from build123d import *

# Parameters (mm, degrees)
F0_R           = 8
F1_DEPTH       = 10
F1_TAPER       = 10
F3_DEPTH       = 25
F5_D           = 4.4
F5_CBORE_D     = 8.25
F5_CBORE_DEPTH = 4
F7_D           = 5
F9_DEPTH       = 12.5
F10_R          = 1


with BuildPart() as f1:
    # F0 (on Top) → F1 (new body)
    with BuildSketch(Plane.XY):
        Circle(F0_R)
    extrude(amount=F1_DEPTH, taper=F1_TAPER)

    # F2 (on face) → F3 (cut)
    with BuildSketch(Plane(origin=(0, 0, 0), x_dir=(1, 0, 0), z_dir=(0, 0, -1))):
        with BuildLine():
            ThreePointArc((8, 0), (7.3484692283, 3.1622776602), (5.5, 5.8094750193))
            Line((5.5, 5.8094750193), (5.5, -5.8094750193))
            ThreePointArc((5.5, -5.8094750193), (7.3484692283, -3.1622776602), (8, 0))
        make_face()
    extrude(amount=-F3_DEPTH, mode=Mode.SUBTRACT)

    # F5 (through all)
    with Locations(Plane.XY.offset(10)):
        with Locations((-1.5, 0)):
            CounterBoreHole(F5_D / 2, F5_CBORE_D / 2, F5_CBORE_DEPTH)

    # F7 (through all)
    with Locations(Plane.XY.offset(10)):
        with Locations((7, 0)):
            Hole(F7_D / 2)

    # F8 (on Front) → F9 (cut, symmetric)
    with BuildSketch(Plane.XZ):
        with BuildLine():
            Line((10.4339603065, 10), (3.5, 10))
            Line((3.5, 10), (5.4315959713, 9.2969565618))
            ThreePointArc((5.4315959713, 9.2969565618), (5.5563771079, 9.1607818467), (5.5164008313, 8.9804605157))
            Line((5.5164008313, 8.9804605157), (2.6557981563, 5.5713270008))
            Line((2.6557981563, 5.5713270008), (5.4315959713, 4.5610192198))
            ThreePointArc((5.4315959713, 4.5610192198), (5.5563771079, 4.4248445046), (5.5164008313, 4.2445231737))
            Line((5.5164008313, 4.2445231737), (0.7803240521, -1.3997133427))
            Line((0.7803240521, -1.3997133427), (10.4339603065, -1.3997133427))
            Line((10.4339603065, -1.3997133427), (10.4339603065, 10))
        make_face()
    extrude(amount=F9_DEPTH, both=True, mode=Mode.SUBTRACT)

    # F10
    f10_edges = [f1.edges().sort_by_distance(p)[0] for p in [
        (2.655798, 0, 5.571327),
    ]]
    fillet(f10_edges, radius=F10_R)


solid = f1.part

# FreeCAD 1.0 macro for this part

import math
import FreeCAD as App
import Part
import Sketcher
Q = App.Units.Quantity


def edges_at(feature, points):
    """Names of the edges that pass closest to the given points."""
    edges = feature.Shape.Edges
    near = lambda p: min(range(len(edges)), key=lambda i: edges[i].distToShape(Part.Vertex(*p))[0])
    return sorted({f"Edge{near(p) + 1}" for p in points})

doc = App.newDocument("Part")
body = doc.addObject("PartDesign::Body", "Body")

sketch1 = doc.addObject("Sketcher::SketchObject", "Sketch")
body.addObject(sketch1)
sketch1.AttachmentSupport = (doc.XY_Plane, [""])
sketch1.MapMode = "FlatFace"
sketch1.addGeometry(Part.Circle(App.Vector(0, 0, 0), App.Vector(0, 0, 1), 8), False)
sketch1.addConstraint(Sketcher.Constraint("Coincident", 0, 3, -1, 1))
sketch1.addConstraint(Sketcher.Constraint("Diameter", 0, 16.0))
pad1 = doc.addObject("PartDesign::Pad", "Pad")
body.addObject(pad1)
pad1.Profile = sketch1
pad1.Length = 10
pad1.TaperAngle = -10

sketch2 = doc.addObject("Sketcher::SketchObject", "Sketch001")
body.addObject(sketch2)
sketch2.AttachmentSupport = (doc.XY_Plane, [""])
sketch2.MapMode = "FlatFace"
sketch2.addGeometry(Part.ArcOfCircle(Part.Circle(App.Vector(0, 0, 0), App.Vector(0, 0, 1), 8), math.radians(-46.567463), math.radians(0)), False)
sketch2.addGeometry(Part.LineSegment(App.Vector(5.5, -5.809475, 0), App.Vector(5.5, 5.809475, 0)), False)
sketch2.addGeometry(Part.ArcOfCircle(Part.Circle(App.Vector(0, 0, 0), App.Vector(0, 0, 1), 8), math.radians(0), math.radians(46.567463)), False)
sketch2.addConstraint(Sketcher.Constraint("Coincident", 0, 1, 1, 1))
sketch2.addConstraint(Sketcher.Constraint("Coincident", 1, 2, 2, 2))
sketch2.addConstraint(Sketcher.Constraint("Tangent", 2, 1, 0, 2))
sketch2.addConstraint(Sketcher.Constraint("Vertical", 1))
sketch2.addConstraint(Sketcher.Constraint("Coincident", 0, 3, -1, 1))
sketch2.addConstraint(Sketcher.Constraint("Equal", 0, 2))
sketch2.addConstraint(Sketcher.Constraint("PointOnObject", 2, 1, -1))
sketch2.addConstraint(Sketcher.Constraint("Radius", 0, 8.0))
sketch2.addConstraint(Sketcher.Constraint("DistanceX", -1, 1, 0, 1, 5.5))
pocket1 = doc.addObject("PartDesign::Pocket", "Pocket")
body.addObject(pocket1)
pocket1.Profile = sketch2
pocket1.Length = 25
pocket1.Reversed = True

sketch3 = doc.addObject("Sketcher::SketchObject", "Sketch002")
body.addObject(sketch3)
sketch3.AttachmentSupport = (doc.XY_Plane, [""])
sketch3.MapMode = "FlatFace"
sketch3.AttachmentOffset = App.Placement(App.Vector(0, 0, 10), App.Rotation())
sketch3.addGeometry(Part.Circle(App.Vector(-1.5, 0, 0), App.Vector(0, 0, 1), 2.2), False)
sketch3.addConstraint(Sketcher.Constraint("PointOnObject", 0, 3, -1))
sketch3.addConstraint(Sketcher.Constraint("Diameter", 0, 4.4))
sketch3.addConstraint(Sketcher.Constraint("DistanceX", 0, 3, -1, 1, 1.5))
doc.recompute()
hole = doc.addObject("PartDesign::Hole", "Hole")
body.addObject(hole)
hole.Profile = sketch3
hole.ThreadType = "None"
hole.Diameter = 4.4
hole.DepthType = "ThroughAll"
hole.HoleCutType = "Counterbore"
hole.HoleCutDiameter = 8.25
hole.HoleCutDepth = 4

sketch4 = doc.addObject("Sketcher::SketchObject", "Sketch003")
body.addObject(sketch4)
sketch4.AttachmentSupport = (doc.XY_Plane, [""])
sketch4.MapMode = "FlatFace"
sketch4.AttachmentOffset = App.Placement(App.Vector(0, 0, 10), App.Rotation())
sketch4.addGeometry(Part.Circle(App.Vector(7, 0, 0), App.Vector(0, 0, 1), 2.5), False)
sketch4.addConstraint(Sketcher.Constraint("PointOnObject", 0, 3, -1))
sketch4.addConstraint(Sketcher.Constraint("Diameter", 0, 5.0))
sketch4.addConstraint(Sketcher.Constraint("DistanceX", -1, 1, 0, 3, 7.0))
doc.recompute()
hole2 = doc.addObject("PartDesign::Hole", "Hole001")
body.addObject(hole2)
hole2.Profile = sketch4
hole2.ThreadType = "None"
hole2.Diameter = 5
hole2.DepthType = "ThroughAll"

sketch5 = doc.addObject("Sketcher::SketchObject", "Sketch004")
body.addObject(sketch5)
sketch5.AttachmentSupport = (doc.XZ_Plane, [""])
sketch5.MapMode = "FlatFace"
sketch5.addGeometry(Part.LineSegment(App.Vector(10.43396, 10, 0), App.Vector(3.5, 10, 0)), False)
sketch5.addGeometry(Part.LineSegment(App.Vector(3.5, 10, 0), App.Vector(5.431596, 9.296957, 0)), False)
sketch5.addGeometry(Part.ArcOfCircle(Part.Circle(App.Vector(5.363192, 9.109018, 0), App.Vector(0, 0, 1), 0.2), math.radians(-40), math.radians(70)), False)
sketch5.addGeometry(Part.LineSegment(App.Vector(5.516401, 8.980461, 0), App.Vector(2.655798, 5.571327, 0)), False)
sketch5.addGeometry(Part.LineSegment(App.Vector(2.655798, 5.571327, 0), App.Vector(5.431596, 4.561019, 0)), False)
sketch5.addGeometry(Part.ArcOfCircle(Part.Circle(App.Vector(5.363192, 4.373081, 0), App.Vector(0, 0, 1), 0.2), math.radians(-40), math.radians(70)), False)
sketch5.addGeometry(Part.LineSegment(App.Vector(5.516401, 4.244523, 0), App.Vector(0.780324, -1.399713, 0)), False)
sketch5.addGeometry(Part.LineSegment(App.Vector(0.780324, -1.399713, 0), App.Vector(10.43396, -1.399713, 0)), False)
sketch5.addGeometry(Part.LineSegment(App.Vector(10.43396, -1.399713, 0), App.Vector(10.43396, 10, 0)), False)
sketch5.addConstraint(Sketcher.Constraint("Coincident", 0, 2, 1, 1))
sketch5.addConstraint(Sketcher.Constraint("Tangent", 1, 2, 2, 2))
sketch5.addConstraint(Sketcher.Constraint("Tangent", 2, 1, 3, 1))
sketch5.addConstraint(Sketcher.Constraint("Coincident", 3, 2, 4, 1))
sketch5.addConstraint(Sketcher.Constraint("Tangent", 4, 2, 5, 2))
sketch5.addConstraint(Sketcher.Constraint("Tangent", 5, 1, 6, 1))
sketch5.addConstraint(Sketcher.Constraint("Coincident", 6, 2, 7, 1))
sketch5.addConstraint(Sketcher.Constraint("Coincident", 7, 2, 8, 1))
sketch5.addConstraint(Sketcher.Constraint("Coincident", 8, 2, 0, 1))
sketch5.addConstraint(Sketcher.Constraint("Horizontal", 0))
sketch5.addConstraint(Sketcher.Constraint("Horizontal", 7))
sketch5.addConstraint(Sketcher.Constraint("Vertical", 8))
sketch5.addConstraint(Sketcher.Constraint("Equal", 2, 5))
sketch5.addConstraint(Sketcher.Constraint("Parallel", 1, 4))
sketch5.addConstraint(Sketcher.Constraint("Parallel", 3, 6))
sketch5.addConstraint(Sketcher.Constraint("Vertical", 2, 3, 5, 3))
sketch5.addConstraint(Sketcher.Constraint("Radius", 2, 0.2))
sketch5.addConstraint(Sketcher.Constraint("Angle", 1, Q("-20 deg")))
sketch5.addConstraint(Sketcher.Constraint("Angle", 3, Q("-130 deg")))
sketch5.addConstraint(Sketcher.Constraint("DistanceY", -1, 1, 0, 2, 10.0))
sketch5.addConstraint(Sketcher.Constraint("DistanceX", -1, 1, 0, 2, 3.5))
sketch5.addConstraint(Sketcher.Constraint("DistanceY", 4, 2, 2, 3, 4.547999))
sketch5.addConstraint(Sketcher.Constraint("DistanceX", 0, 2, 0, 1, 6.93396))
sketch5.addConstraint(Sketcher.Constraint("DistanceX", -1, 1, 2, 1, 5.516401))
sketch5.addConstraint(Sketcher.Constraint("DistanceX", 7, 1, 7, 2, 9.653636))
pocket2 = doc.addObject("PartDesign::Pocket", "Pocket001")
body.addObject(pocket2)
pocket2.Profile = sketch5
pocket2.Length = 25
pocket2.Midplane = True
doc.recompute()

fillet = doc.addObject("PartDesign::Fillet", "Fillet")
body.addObject(fillet)
fillet.Base = (pocket2, edges_at(pocket2, [(2.656, 0, 5.571)]))
fillet.Radius = 1

doc.recompute()
